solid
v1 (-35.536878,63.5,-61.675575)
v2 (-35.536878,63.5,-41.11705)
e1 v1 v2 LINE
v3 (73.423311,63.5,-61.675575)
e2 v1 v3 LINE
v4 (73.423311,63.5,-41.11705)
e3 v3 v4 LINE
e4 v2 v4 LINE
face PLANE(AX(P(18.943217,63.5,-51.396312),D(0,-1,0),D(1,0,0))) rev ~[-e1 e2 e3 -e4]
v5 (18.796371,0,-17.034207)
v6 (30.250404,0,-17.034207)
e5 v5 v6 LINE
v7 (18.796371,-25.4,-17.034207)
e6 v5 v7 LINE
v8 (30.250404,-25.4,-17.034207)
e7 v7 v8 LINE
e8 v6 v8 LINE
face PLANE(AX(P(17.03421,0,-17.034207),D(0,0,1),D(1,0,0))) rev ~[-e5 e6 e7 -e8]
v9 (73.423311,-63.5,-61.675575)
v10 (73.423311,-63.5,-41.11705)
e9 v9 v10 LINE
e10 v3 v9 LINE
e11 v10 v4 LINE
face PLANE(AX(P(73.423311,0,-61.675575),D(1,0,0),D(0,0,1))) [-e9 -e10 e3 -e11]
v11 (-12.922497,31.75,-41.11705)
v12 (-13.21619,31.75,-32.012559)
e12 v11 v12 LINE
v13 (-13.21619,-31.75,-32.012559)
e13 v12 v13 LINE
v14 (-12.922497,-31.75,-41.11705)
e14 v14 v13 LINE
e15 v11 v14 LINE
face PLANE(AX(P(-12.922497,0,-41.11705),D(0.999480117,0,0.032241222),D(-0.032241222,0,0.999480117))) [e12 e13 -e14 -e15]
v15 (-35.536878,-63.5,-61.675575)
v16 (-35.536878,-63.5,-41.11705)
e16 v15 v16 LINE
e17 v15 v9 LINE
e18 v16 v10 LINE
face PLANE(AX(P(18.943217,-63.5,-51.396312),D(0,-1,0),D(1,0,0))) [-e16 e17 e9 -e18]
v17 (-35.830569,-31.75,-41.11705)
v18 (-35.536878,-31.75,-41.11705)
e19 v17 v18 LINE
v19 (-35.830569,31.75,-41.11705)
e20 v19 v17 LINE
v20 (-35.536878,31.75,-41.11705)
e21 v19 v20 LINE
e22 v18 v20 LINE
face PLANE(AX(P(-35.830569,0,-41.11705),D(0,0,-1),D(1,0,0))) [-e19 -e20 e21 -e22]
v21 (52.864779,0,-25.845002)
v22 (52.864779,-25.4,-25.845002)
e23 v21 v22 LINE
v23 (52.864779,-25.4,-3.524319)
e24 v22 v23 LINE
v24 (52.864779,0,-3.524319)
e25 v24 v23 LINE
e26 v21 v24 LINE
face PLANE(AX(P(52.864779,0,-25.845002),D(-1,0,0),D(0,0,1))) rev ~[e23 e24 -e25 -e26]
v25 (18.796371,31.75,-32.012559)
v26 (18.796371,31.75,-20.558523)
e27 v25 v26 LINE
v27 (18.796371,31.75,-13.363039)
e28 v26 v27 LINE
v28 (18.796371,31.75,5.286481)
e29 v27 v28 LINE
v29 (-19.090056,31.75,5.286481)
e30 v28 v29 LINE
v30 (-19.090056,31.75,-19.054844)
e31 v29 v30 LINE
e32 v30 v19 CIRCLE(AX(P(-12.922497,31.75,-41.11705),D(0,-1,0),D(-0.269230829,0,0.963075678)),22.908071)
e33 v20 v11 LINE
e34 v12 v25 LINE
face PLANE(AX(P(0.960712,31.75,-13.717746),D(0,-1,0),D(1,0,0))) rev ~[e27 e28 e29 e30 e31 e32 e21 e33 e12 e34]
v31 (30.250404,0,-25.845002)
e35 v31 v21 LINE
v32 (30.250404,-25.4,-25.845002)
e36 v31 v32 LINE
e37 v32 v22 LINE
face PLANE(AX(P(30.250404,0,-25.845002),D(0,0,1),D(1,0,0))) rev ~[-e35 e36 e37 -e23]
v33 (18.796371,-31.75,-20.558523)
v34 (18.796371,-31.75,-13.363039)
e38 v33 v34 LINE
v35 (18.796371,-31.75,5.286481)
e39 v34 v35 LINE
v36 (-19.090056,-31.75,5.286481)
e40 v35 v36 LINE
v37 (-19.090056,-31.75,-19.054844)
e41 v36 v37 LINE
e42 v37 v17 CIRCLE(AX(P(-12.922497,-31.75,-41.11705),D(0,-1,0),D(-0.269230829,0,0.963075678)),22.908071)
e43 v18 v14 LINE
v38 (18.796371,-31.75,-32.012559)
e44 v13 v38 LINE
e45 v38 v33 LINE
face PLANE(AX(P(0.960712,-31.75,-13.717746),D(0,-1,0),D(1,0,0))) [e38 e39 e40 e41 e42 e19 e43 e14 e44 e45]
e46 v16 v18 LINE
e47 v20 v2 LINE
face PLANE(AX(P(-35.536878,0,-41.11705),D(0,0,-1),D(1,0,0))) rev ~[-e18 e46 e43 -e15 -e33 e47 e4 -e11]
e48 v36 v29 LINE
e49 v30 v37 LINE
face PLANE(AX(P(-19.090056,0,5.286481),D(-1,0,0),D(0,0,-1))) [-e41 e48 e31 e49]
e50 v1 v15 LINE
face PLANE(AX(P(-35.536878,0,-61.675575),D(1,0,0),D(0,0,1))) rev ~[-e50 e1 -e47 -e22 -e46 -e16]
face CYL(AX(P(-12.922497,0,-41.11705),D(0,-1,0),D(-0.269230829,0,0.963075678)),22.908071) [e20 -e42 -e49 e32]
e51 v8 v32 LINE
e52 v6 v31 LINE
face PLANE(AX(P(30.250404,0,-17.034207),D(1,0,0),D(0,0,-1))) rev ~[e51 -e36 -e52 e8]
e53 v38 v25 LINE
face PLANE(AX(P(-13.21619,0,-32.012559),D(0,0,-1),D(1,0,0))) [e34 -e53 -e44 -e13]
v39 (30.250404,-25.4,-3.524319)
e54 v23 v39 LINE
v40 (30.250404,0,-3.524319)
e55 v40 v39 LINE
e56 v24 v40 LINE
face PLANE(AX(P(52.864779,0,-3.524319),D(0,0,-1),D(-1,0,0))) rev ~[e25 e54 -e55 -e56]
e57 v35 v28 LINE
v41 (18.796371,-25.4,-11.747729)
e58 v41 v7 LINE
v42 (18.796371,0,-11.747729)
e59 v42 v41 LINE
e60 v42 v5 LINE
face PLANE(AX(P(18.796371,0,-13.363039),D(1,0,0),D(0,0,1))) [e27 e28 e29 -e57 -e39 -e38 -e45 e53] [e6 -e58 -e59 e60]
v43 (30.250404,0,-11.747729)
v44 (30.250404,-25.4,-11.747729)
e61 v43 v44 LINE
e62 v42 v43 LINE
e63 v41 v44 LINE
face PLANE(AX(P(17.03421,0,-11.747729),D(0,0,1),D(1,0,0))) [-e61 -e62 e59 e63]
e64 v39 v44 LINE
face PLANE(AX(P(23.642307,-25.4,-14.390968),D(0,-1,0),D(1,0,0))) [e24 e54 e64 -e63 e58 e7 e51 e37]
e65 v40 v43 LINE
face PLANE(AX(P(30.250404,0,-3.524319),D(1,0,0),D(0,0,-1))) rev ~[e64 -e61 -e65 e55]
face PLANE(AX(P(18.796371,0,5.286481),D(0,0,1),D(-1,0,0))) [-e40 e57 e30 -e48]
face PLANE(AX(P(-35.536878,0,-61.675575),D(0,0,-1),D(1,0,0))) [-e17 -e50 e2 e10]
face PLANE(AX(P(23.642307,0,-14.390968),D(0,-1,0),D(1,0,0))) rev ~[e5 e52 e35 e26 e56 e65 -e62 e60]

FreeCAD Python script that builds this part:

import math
import FreeCAD as App
import Part
import Sketcher

V = App.Vector
Q = App.Units.Quantity

doc = App.newDocument("Part")
body = doc.addObject("PartDesign::Body", "Body")

sketch1 = body.newObject("Sketcher::SketchObject", "Sketch")
sketch1.AttachmentSupport = (doc.getObject("XZ_Plane"), [""])
sketch1.MapMode = "FlatFace"
sketch1.addGeometry(Part.LineSegment(V(-19, 5, 0), V(-19, -19, 0)), False)
sketch1.addGeometry(Part.ArcOfCircle(Part.Circle(V(-13, -41, 0), V(0, 0, 1), 23), math.radians(106), math.radians(180)), False)
sketch1.addGeometry(Part.LineSegment(V(-36, -41, 0), V(-13, -41, 0)), False)
sketch1.addGeometry(Part.LineSegment(V(-13, -41, 0), V(-13, -32, 0)), False)
sketch1.addGeometry(Part.LineSegment(V(-13, -32, 0), V(19, -32, 0)), False)
sketch1.addGeometry(Part.LineSegment(V(19, -32, 0), V(19, -21, 0)), False)
sketch1.addGeometry(Part.LineSegment(V(19, -21, 0), V(19, -13, 0)), False)
sketch1.addGeometry(Part.LineSegment(V(19, -13, 0), V(19, 5, 0)), False)
sketch1.addGeometry(Part.LineSegment(V(19, 5, 0), V(-19, 5, 0)), False)
sketch1.addConstraint(Sketcher.Constraint("Coincident", 0, 2, 1, 1))
sketch1.addConstraint(Sketcher.Constraint("Coincident", 1, 2, 2, 1))
sketch1.addConstraint(Sketcher.Constraint("Coincident", 2, 2, 3, 1))
sketch1.addConstraint(Sketcher.Constraint("Coincident", 3, 2, 4, 1))
sketch1.addConstraint(Sketcher.Constraint("Coincident", 4, 2, 5, 1))
sketch1.addConstraint(Sketcher.Constraint("Coincident", 5, 2, 6, 1))
sketch1.addConstraint(Sketcher.Constraint("Coincident", 6, 2, 7, 1))
sketch1.addConstraint(Sketcher.Constraint("Coincident", 7, 2, 8, 1))
sketch1.addConstraint(Sketcher.Constraint("Coincident", 8, 2, 0, 1))
sketch1.addConstraint(Sketcher.Constraint("Vertical", 0))
sketch1.addConstraint(Sketcher.Constraint("Horizontal", 2))
sketch1.addConstraint(Sketcher.Constraint("Horizontal", 4))
sketch1.addConstraint(Sketcher.Constraint("Vertical", 5))
sketch1.addConstraint(Sketcher.Constraint("Vertical", 6))
sketch1.addConstraint(Sketcher.Constraint("Vertical", 7))
sketch1.addConstraint(Sketcher.Constraint("Horizontal", 8))
sketch1.addConstraint(Sketcher.Constraint("Coincident", 2, 2, 1, 3))
sketch1.addConstraint(Sketcher.Constraint("Radius", 1, Q("22.908071 mm")))
sketch1.addConstraint(Sketcher.Constraint("DistanceY", 5, 2, 0, 2, Q("0.0592 in")))
sketch1.addConstraint(Sketcher.Constraint("DistanceX", 4, 1, 4, 2, Q("32.012561 mm")))
sketch1.addConstraint(Sketcher.Constraint("DistanceY", 7, 1, 7, 2, Q("18.64952 mm")))
sketch1.addConstraint(Sketcher.Constraint("DistanceX", 8, 2, 8, 1, Q("37.886428 mm")))
sketch1.addConstraint(Sketcher.Constraint("DistanceY", 0, 2, 0, 1, Q("24.341324 mm")))
sketch1.addConstraint(Sketcher.Constraint("DistanceY", 5, 1, 5, 2, Q("11.454036 mm")))
sketch1.addConstraint(Sketcher.Constraint("DistanceY", 1, 3, -1, 1, Q("41.11705 mm")))
sketch1.addConstraint(Sketcher.Constraint("DistanceX", 1, 2, -1, 1, Q("35.830569 mm")))
sketch1.addConstraint(Sketcher.Constraint("DistanceX", 3, 2, -1, 1, Q("13.21619 mm")))
pad1 = body.newObject("PartDesign::Pad", "Pad")
pad1.Profile = sketch1
pad1.Length = Q("2.5 in")
pad1.Midplane = True

sketch2 = body.newObject("Sketcher::SketchObject", "Sketch001")
sketch2.AttachmentSupport = (doc.getObject("XZ_Plane"), [""])
sketch2.MapMode = "FlatFace"
sketch2.addGeometry(Part.LineSegment(V(-36, -41, 0), V(-36, -62, 0)), False)
sketch2.addGeometry(Part.LineSegment(V(-36, -62, 0), V(73, -62, 0)), False)
sketch2.addGeometry(Part.LineSegment(V(73, -62, 0), V(73, -41, 0)), False)
sketch2.addGeometry(Part.LineSegment(V(73, -41, 0), V(-36, -41, 0)), False)
sketch2.addConstraint(Sketcher.Constraint("Coincident", 0, 2, 1, 1))
sketch2.addConstraint(Sketcher.Constraint("Coincident", 1, 2, 2, 1))
sketch2.addConstraint(Sketcher.Constraint("Coincident", 2, 2, 3, 1))
sketch2.addConstraint(Sketcher.Constraint("Coincident", 3, 2, 0, 1))
sketch2.addConstraint(Sketcher.Constraint("Vertical", 0))
sketch2.addConstraint(Sketcher.Constraint("Horizontal", 1))
sketch2.addConstraint(Sketcher.Constraint("Vertical", 2))
sketch2.addConstraint(Sketcher.Constraint("Horizontal", 3))
sketch2.addConstraint(Sketcher.Constraint("DistanceX", 1, 1, 1, 2, Q("108.960189 mm")))
sketch2.addConstraint(Sketcher.Constraint("DistanceY", 0, 2, 0, 1, Q("20.558525 mm")))
sketch2.addConstraint(Sketcher.Constraint("DistanceX", -1, 1, 1, 2, Q("73.423311 mm")))
sketch2.addConstraint(Sketcher.Constraint("DistanceY", 2, 2, -1, 1, Q("41.11705 mm")))
pad2 = body.newObject("PartDesign::Pad", "Pad001")
pad2.Profile = sketch2
pad2.Length = Q("5 in")
pad2.Midplane = True

sketch3 = body.newObject("Sketcher::SketchObject", "Sketch002")
sketch3.AttachmentSupport = (doc.getObject("XZ_Plane"), [""])
sketch3.MapMode = "FlatFace"
sketch3.addGeometry(Part.LineSegment(V(17, -12, 0), V(17, -17, 0)), False)
sketch3.addGeometry(Part.LineSegment(V(17, -17, 0), V(30, -17, 0)), False)
sketch3.addGeometry(Part.LineSegment(V(30, -17, 0), V(30, -26, 0)), False)
sketch3.addGeometry(Part.LineSegment(V(30, -26, 0), V(53, -26, 0)), False)
sketch3.addGeometry(Part.LineSegment(V(53, -26, 0), V(53, -4, 0)), False)
sketch3.addGeometry(Part.LineSegment(V(53, -4, 0), V(30, -4, 0)), False)
sketch3.addGeometry(Part.LineSegment(V(30, -4, 0), V(30, -12, 0)), False)
sketch3.addGeometry(Part.LineSegment(V(30, -12, 0), V(17, -12, 0)), False)
sketch3.addConstraint(Sketcher.Constraint("Coincident", 0, 2, 1, 1))
sketch3.addConstraint(Sketcher.Constraint("Coincident", 1, 2, 2, 1))
sketch3.addConstraint(Sketcher.Constraint("Coincident", 2, 2, 3, 1))
sketch3.addConstraint(Sketcher.Constraint("Coincident", 3, 2, 4, 1))
sketch3.addConstraint(Sketcher.Constraint("Coincident", 4, 2, 5, 1))
sketch3.addConstraint(Sketcher.Constraint("Coincident", 5, 2, 6, 1))
sketch3.addConstraint(Sketcher.Constraint("Coincident", 6, 2, 7, 1))
sketch3.addConstraint(Sketcher.Constraint("Coincident", 7, 2, 0, 1))
sketch3.addConstraint(Sketcher.Constraint("Vertical", 0))
sketch3.addConstraint(Sketcher.Constraint("Horizontal", 1))
sketch3.addConstraint(Sketcher.Constraint("Vertical", 2))
sketch3.addConstraint(Sketcher.Constraint("Horizontal", 3))
sketch3.addConstraint(Sketcher.Constraint("Vertical", 4))
sketch3.addConstraint(Sketcher.Constraint("Horizontal", 5))
sketch3.addConstraint(Sketcher.Constraint("Vertical", 6))
sketch3.addConstraint(Sketcher.Constraint("Horizontal", 7))
sketch3.addConstraint(Sketcher.Constraint("Vertical", 2, 2, 5, 2))
sketch3.addConstraint(Sketcher.Constraint("DistanceY", 6, 2, 6, 1, Q("8.22341 mm")))
sketch3.addConstraint(Sketcher.Constraint("DistanceX", 1, 1, 1, 2, Q("13.216194 mm")))
sketch3.addConstraint(Sketcher.Constraint("DistanceX", 3, 1, 3, 2, Q("22.614375 mm")))
sketch3.addConstraint(Sketcher.Constraint("DistanceY", 0, 2, 0, 1, Q("5.286478 mm")))
sketch3.addConstraint(Sketcher.Constraint("DistanceY", 2, 2, 2, 1, Q("8.810796 mm")))
sketch3.addConstraint(Sketcher.Constraint("DistanceX", -1, 1, 0, 2, Q("17.03421 mm")))
sketch3.addConstraint(Sketcher.Constraint("DistanceY", 4, 2, -1, 1, Q("3.524319 mm")))
pad3 = body.newObject("PartDesign::Pad", "Pad002")
pad3.Profile = sketch3
pad3.Length = Q("1 in")

doc.recompute()
